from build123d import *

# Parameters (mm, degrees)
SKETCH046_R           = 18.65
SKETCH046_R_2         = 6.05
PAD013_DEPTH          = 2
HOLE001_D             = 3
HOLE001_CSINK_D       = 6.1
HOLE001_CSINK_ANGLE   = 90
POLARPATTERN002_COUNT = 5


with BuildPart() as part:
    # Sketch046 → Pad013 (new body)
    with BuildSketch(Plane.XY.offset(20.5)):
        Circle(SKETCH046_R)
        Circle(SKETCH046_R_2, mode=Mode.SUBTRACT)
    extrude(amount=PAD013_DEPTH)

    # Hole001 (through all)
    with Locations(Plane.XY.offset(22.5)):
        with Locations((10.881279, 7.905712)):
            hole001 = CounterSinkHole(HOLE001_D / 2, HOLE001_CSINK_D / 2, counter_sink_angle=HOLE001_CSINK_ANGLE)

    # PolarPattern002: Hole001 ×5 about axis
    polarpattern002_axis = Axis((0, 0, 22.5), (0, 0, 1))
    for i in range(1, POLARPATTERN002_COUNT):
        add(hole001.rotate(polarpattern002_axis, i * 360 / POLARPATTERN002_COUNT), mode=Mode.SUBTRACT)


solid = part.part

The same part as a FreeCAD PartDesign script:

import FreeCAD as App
import Part
import Sketcher

V = App.Vector

doc = App.newDocument("Part")
body = doc.addObject("PartDesign::Body", "Body")

sketch1 = doc.addObject("Sketcher::SketchObject", "Sketch")
body.addObject(sketch1)
sketch1.AttachmentSupport = (doc.XY_Plane, [""])
sketch1.MapMode = "FlatFace"
sketch1.AttachmentOffset = App.Placement(V(0, 0, 20.5), App.Rotation())
sketch1.addGeometry([
    Part.Circle(V(0, 0, 0), V(0, 0, 1), 19),
    Part.Circle(V(0, 0, 0), V(0, 0, 1), 6),
], False)
sketch1.addConstraint([
    Sketcher.Constraint("Coincident", 0, 3, -1, 1),
    Sketcher.Constraint("Coincident", 1, 3, -1, 1),
    Sketcher.Constraint("Diameter", 0, 37.3),
    Sketcher.Constraint("Diameter", 1, 12.1),
])
pad1 = doc.addObject("PartDesign::Pad", "Pad")
body.addObject(pad1)
pad1.Profile = sketch1
pad1.Length = 2

sketch2 = doc.addObject("Sketcher::SketchObject", "Sketch001")
body.addObject(sketch2)
sketch2.AttachmentSupport = (doc.XY_Plane, [""])
sketch2.MapMode = "FlatFace"
sketch2.AttachmentOffset = App.Placement(V(0, 0, 22.5), App.Rotation())
sketch2.addGeometry(Part.Circle(V(10.9, 7.9, 0), V(0, 0, 1), 1.5), False)
sketch2.addConstraint([
    Sketcher.Constraint("Diameter", 0, 3.0),
    Sketcher.Constraint("DistanceX", -1, 1, 0, 3, 10.881279),
    Sketcher.Constraint("DistanceY", -1, 1, 0, 3, 7.905712),
])
doc.recompute()
hole = doc.addObject("PartDesign::Hole", "Hole")
body.addObject(hole)
hole.Profile = sketch2
hole.ThreadType = "None"
hole.Diameter = 3
hole.DepthType = "ThroughAll"
hole.HoleCutType = "Countersink"
hole.HoleCutDiameter = 6.1
hole.HoleCutCountersinkAngle = 90
doc.recompute()

polarpattern = doc.addObject("PartDesign::PolarPattern", "PolarPattern")
body.addObject(polarpattern)
polarpattern.Originals = [hole]
polarpattern.Axis = (doc.Z_Axis, [""])
polarpattern.Angle = 360
polarpattern.Occurrences = 5
body.Tip = polarpattern

doc.recompute()
